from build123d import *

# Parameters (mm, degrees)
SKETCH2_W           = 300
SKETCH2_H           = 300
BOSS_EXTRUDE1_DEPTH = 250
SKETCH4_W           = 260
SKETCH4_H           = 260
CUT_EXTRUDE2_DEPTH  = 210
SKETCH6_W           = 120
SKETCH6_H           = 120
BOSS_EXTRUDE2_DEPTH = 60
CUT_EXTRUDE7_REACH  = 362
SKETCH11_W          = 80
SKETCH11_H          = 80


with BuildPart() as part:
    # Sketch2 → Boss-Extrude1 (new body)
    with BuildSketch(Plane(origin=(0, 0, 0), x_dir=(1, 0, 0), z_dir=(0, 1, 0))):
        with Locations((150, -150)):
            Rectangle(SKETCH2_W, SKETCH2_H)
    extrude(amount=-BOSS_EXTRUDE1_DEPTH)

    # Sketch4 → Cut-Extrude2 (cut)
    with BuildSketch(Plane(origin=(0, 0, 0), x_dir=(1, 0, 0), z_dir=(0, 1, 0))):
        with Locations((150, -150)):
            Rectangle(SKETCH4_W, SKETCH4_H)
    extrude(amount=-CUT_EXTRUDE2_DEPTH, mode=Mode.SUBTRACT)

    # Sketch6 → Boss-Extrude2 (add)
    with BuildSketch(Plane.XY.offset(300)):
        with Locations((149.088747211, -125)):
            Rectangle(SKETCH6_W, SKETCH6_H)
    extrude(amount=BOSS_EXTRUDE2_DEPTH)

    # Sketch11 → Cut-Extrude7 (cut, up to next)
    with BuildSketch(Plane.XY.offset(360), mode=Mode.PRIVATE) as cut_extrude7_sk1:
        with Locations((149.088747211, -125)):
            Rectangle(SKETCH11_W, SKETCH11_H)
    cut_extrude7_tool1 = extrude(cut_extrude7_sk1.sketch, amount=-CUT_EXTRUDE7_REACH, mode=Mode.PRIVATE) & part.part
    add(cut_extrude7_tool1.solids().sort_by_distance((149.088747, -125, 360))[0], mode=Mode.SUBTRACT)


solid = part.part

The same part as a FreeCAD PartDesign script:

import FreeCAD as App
import Part
import Sketcher
Q = App.Units.Quantity

doc = App.newDocument("Part")
body = doc.addObject("PartDesign::Body", "Body")

# Sketch on XZ plane
sketch1 = body.newObject("Sketcher::SketchObject", "Sketch")
sketch1.AttachmentSupport = (doc.getObject("XZ_Plane"), [""])
sketch1.MapMode = "FlatFace"
sketch1.addGeometry(Part.LineSegment(App.Vector(0, 0, 0), App.Vector(0, 300, 0)), False)
sketch1.addGeometry(Part.LineSegment(App.Vector(0, 300, 0), App.Vector(300, 300, 0)), False)
sketch1.addGeometry(Part.LineSegment(App.Vector(300, 300, 0), App.Vector(300, 0, 0)), False)
sketch1.addGeometry(Part.LineSegment(App.Vector(300, 0, 0), App.Vector(0, 0, 0)), False)
sketch1.addConstraint(Sketcher.Constraint("Coincident", 0, 2, 1, 1))
sketch1.addConstraint(Sketcher.Constraint("Coincident", 1, 2, 2, 1))
sketch1.addConstraint(Sketcher.Constraint("Coincident", 2, 2, 3, 1))
sketch1.addConstraint(Sketcher.Constraint("Coincident", 3, 2, 0, 1))
sketch1.addConstraint(Sketcher.Constraint("Vertical", 0))
sketch1.addConstraint(Sketcher.Constraint("Horizontal", 1))
sketch1.addConstraint(Sketcher.Constraint("Vertical", 2))
sketch1.addConstraint(Sketcher.Constraint("Horizontal", 3))
sketch1.addConstraint(Sketcher.Constraint("Coincident", 3, 2, -1, 1))
sketch1.addConstraint(Sketcher.Constraint("Equal", 3, 0))
sketch1.addConstraint(Sketcher.Constraint("DistanceX", 1, 1, 1, 2, Q("300 mm")))
pad1 = body.newObject("PartDesign::Pad", "Pad")
pad1.Profile = sketch1
pad1.Length = 250

# Sketch on XZ plane
sketch2 = body.newObject("Sketcher::SketchObject", "Sketch001")
sketch2.AttachmentSupport = (doc.getObject("XZ_Plane"), [""])
sketch2.MapMode = "FlatFace"
sketch2.addGeometry(Part.LineSegment(App.Vector(20, 20, 0), App.Vector(20, 280, 0)), False)
sketch2.addGeometry(Part.LineSegment(App.Vector(20, 280, 0), App.Vector(280, 280, 0)), False)
sketch2.addGeometry(Part.LineSegment(App.Vector(280, 280, 0), App.Vector(280, 20, 0)), False)
sketch2.addGeometry(Part.LineSegment(App.Vector(280, 20, 0), App.Vector(20, 20, 0)), False)
sketch2.addConstraint(Sketcher.Constraint("Coincident", 0, 2, 1, 1))
sketch2.addConstraint(Sketcher.Constraint("Coincident", 1, 2, 2, 1))
sketch2.addConstraint(Sketcher.Constraint("Coincident", 2, 2, 3, 1))
sketch2.addConstraint(Sketcher.Constraint("Coincident", 3, 2, 0, 1))
sketch2.addConstraint(Sketcher.Constraint("Vertical", 0))
sketch2.addConstraint(Sketcher.Constraint("Horizontal", 1))
sketch2.addConstraint(Sketcher.Constraint("Vertical", 2))
sketch2.addConstraint(Sketcher.Constraint("Horizontal", 3))
sketch2.addConstraint(Sketcher.Constraint("Equal", 3, 0))
sketch2.addConstraint(Sketcher.Constraint("DistanceX", 1, 1, 1, 2, Q("260 mm")))
sketch2.addConstraint(Sketcher.Constraint("DistanceX", -1, 1, 0, 2, Q("20 mm")))
sketch2.addConstraint(Sketcher.Constraint("DistanceY", -1, 1, 0, 2, Q("280 mm")))
pocket1 = body.newObject("PartDesign::Pocket", "Pocket")
pocket1.Profile = sketch2
pocket1.Length = 210
pocket1.Reversed = True

# Sketch on XY plane
sketch3 = body.newObject("Sketcher::SketchObject", "Sketch002")
sketch3.AttachmentSupport = (doc.getObject("XY_Plane"), [""])
sketch3.MapMode = "FlatFace"
sketch3.AttachmentOffset = App.Placement(App.Vector(0, 0, 300), App.Rotation())
sketch3.addGeometry(Part.LineSegment(App.Vector(89, -65, 0), App.Vector(89, -185, 0)), False)
sketch3.addGeometry(Part.LineSegment(App.Vector(89, -185, 0), App.Vector(209, -185, 0)), False)
sketch3.addGeometry(Part.LineSegment(App.Vector(209, -185, 0), App.Vector(209, -65, 0)), False)
sketch3.addGeometry(Part.LineSegment(App.Vector(209, -65, 0), App.Vector(89, -65, 0)), False)
sketch3.addConstraint(Sketcher.Constraint("Coincident", 0, 2, 1, 1))
sketch3.addConstraint(Sketcher.Constraint("Coincident", 1, 2, 2, 1))
sketch3.addConstraint(Sketcher.Constraint("Coincident", 2, 2, 3, 1))
sketch3.addConstraint(Sketcher.Constraint("Coincident", 3, 2, 0, 1))
sketch3.addConstraint(Sketcher.Constraint("Vertical", 0))
sketch3.addConstraint(Sketcher.Constraint("Horizontal", 1))
sketch3.addConstraint(Sketcher.Constraint("Vertical", 2))
sketch3.addConstraint(Sketcher.Constraint("Horizontal", 3))
sketch3.addConstraint(Sketcher.Constraint("Equal", 3, 0))
sketch3.addConstraint(Sketcher.Constraint("DistanceX", 1, 1, 1, 2, Q("120 mm")))
sketch3.addConstraint(Sketcher.Constraint("DistanceY", 0, 2, -1, 1, Q("185 mm")))
sketch3.addConstraint(Sketcher.Constraint("DistanceX", -1, 1, 0, 2, Q("89.088747 mm")))
pad2 = body.newObject("PartDesign::Pad", "Pad001")
pad2.Profile = sketch3
pad2.Length = 60

# Sketch on XY plane
sketch4 = body.newObject("Sketcher::SketchObject", "Sketch003")
sketch4.AttachmentSupport = (doc.getObject("XY_Plane"), [""])
sketch4.MapMode = "FlatFace"
sketch4.AttachmentOffset = App.Placement(App.Vector(0, 0, 360), App.Rotation())
sketch4.addGeometry(Part.LineSegment(App.Vector(109, -85, 0), App.Vector(109, -165, 0)), False)
sketch4.addGeometry(Part.LineSegment(App.Vector(109, -165, 0), App.Vector(189, -165, 0)), False)
sketch4.addGeometry(Part.LineSegment(App.Vector(189, -165, 0), App.Vector(189, -85, 0)), False)
sketch4.addGeometry(Part.LineSegment(App.Vector(189, -85, 0), App.Vector(109, -85, 0)), False)
sketch4.addConstraint(Sketcher.Constraint("Coincident", 0, 2, 1, 1))
sketch4.addConstraint(Sketcher.Constraint("Coincident", 1, 2, 2, 1))
sketch4.addConstraint(Sketcher.Constraint("Coincident", 2, 2, 3, 1))
sketch4.addConstraint(Sketcher.Constraint("Coincident", 3, 2, 0, 1))
sketch4.addConstraint(Sketcher.Constraint("Vertical", 0))
sketch4.addConstraint(Sketcher.Constraint("Horizontal", 1))
sketch4.addConstraint(Sketcher.Constraint("Vertical", 2))
sketch4.addConstraint(Sketcher.Constraint("Horizontal", 3))
sketch4.addConstraint(Sketcher.Constraint("Equal", 3, 0))
sketch4.addConstraint(Sketcher.Constraint("DistanceX", 1, 1, 1, 2, Q("80 mm")))
sketch4.addConstraint(Sketcher.Constraint("DistanceY", 0, 2, -1, 1, Q("165 mm")))
sketch4.addConstraint(Sketcher.Constraint("DistanceX", -1, 1, 0, 2, Q("109.088747 mm")))
pocket2 = body.newObject("PartDesign::Pocket", "Pocket001")
pocket2.Profile = sketch4
pocket2.Type = "UpToFirst"

doc.recompute()
